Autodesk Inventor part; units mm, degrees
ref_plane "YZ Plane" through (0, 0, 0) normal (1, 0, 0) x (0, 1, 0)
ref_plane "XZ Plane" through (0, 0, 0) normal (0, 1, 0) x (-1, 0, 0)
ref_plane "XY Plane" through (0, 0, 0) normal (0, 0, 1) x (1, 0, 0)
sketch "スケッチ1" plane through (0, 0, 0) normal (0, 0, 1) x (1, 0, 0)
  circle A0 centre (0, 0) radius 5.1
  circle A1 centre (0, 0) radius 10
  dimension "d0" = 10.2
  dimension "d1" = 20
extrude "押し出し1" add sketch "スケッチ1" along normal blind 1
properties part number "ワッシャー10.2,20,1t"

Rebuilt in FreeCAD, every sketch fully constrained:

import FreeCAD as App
import Part
import Sketcher
from FreeCAD import Vector
Q = App.Units.Quantity

doc = App.newDocument("Part")
body = doc.addObject("PartDesign::Body", "Body")

# Sketch on XY plane
sketch1 = doc.addObject("Sketcher::SketchObject", "Sketch")
body.addObject(sketch1)
sketch1.AttachmentSupport = (doc.XY_Plane, [""])
sketch1.MapMode = "FlatFace"
sketch1.addGeometry([
    Part.Circle(Vector(0, 0, 0), Vector(0, 0, 1), 10),
    Part.Circle(Vector(0, 0, 0), Vector(0, 0, 1), 5),
], False)
sketch1.addConstraint([
    Sketcher.Constraint("Coincident", 0, 3, -1, 1),
    Sketcher.Constraint("Coincident", 1, 3, -1, 1),
    Sketcher.Constraint("Diameter", 0, Q("20 mm")),
    Sketcher.Constraint("Diameter", 1, Q("10.2 mm")),
])
pad1 = doc.addObject("PartDesign::Pad", "Pad")
body.addObject(pad1)
pad1.Profile = sketch1
pad1.Length = 1

doc.recompute()
